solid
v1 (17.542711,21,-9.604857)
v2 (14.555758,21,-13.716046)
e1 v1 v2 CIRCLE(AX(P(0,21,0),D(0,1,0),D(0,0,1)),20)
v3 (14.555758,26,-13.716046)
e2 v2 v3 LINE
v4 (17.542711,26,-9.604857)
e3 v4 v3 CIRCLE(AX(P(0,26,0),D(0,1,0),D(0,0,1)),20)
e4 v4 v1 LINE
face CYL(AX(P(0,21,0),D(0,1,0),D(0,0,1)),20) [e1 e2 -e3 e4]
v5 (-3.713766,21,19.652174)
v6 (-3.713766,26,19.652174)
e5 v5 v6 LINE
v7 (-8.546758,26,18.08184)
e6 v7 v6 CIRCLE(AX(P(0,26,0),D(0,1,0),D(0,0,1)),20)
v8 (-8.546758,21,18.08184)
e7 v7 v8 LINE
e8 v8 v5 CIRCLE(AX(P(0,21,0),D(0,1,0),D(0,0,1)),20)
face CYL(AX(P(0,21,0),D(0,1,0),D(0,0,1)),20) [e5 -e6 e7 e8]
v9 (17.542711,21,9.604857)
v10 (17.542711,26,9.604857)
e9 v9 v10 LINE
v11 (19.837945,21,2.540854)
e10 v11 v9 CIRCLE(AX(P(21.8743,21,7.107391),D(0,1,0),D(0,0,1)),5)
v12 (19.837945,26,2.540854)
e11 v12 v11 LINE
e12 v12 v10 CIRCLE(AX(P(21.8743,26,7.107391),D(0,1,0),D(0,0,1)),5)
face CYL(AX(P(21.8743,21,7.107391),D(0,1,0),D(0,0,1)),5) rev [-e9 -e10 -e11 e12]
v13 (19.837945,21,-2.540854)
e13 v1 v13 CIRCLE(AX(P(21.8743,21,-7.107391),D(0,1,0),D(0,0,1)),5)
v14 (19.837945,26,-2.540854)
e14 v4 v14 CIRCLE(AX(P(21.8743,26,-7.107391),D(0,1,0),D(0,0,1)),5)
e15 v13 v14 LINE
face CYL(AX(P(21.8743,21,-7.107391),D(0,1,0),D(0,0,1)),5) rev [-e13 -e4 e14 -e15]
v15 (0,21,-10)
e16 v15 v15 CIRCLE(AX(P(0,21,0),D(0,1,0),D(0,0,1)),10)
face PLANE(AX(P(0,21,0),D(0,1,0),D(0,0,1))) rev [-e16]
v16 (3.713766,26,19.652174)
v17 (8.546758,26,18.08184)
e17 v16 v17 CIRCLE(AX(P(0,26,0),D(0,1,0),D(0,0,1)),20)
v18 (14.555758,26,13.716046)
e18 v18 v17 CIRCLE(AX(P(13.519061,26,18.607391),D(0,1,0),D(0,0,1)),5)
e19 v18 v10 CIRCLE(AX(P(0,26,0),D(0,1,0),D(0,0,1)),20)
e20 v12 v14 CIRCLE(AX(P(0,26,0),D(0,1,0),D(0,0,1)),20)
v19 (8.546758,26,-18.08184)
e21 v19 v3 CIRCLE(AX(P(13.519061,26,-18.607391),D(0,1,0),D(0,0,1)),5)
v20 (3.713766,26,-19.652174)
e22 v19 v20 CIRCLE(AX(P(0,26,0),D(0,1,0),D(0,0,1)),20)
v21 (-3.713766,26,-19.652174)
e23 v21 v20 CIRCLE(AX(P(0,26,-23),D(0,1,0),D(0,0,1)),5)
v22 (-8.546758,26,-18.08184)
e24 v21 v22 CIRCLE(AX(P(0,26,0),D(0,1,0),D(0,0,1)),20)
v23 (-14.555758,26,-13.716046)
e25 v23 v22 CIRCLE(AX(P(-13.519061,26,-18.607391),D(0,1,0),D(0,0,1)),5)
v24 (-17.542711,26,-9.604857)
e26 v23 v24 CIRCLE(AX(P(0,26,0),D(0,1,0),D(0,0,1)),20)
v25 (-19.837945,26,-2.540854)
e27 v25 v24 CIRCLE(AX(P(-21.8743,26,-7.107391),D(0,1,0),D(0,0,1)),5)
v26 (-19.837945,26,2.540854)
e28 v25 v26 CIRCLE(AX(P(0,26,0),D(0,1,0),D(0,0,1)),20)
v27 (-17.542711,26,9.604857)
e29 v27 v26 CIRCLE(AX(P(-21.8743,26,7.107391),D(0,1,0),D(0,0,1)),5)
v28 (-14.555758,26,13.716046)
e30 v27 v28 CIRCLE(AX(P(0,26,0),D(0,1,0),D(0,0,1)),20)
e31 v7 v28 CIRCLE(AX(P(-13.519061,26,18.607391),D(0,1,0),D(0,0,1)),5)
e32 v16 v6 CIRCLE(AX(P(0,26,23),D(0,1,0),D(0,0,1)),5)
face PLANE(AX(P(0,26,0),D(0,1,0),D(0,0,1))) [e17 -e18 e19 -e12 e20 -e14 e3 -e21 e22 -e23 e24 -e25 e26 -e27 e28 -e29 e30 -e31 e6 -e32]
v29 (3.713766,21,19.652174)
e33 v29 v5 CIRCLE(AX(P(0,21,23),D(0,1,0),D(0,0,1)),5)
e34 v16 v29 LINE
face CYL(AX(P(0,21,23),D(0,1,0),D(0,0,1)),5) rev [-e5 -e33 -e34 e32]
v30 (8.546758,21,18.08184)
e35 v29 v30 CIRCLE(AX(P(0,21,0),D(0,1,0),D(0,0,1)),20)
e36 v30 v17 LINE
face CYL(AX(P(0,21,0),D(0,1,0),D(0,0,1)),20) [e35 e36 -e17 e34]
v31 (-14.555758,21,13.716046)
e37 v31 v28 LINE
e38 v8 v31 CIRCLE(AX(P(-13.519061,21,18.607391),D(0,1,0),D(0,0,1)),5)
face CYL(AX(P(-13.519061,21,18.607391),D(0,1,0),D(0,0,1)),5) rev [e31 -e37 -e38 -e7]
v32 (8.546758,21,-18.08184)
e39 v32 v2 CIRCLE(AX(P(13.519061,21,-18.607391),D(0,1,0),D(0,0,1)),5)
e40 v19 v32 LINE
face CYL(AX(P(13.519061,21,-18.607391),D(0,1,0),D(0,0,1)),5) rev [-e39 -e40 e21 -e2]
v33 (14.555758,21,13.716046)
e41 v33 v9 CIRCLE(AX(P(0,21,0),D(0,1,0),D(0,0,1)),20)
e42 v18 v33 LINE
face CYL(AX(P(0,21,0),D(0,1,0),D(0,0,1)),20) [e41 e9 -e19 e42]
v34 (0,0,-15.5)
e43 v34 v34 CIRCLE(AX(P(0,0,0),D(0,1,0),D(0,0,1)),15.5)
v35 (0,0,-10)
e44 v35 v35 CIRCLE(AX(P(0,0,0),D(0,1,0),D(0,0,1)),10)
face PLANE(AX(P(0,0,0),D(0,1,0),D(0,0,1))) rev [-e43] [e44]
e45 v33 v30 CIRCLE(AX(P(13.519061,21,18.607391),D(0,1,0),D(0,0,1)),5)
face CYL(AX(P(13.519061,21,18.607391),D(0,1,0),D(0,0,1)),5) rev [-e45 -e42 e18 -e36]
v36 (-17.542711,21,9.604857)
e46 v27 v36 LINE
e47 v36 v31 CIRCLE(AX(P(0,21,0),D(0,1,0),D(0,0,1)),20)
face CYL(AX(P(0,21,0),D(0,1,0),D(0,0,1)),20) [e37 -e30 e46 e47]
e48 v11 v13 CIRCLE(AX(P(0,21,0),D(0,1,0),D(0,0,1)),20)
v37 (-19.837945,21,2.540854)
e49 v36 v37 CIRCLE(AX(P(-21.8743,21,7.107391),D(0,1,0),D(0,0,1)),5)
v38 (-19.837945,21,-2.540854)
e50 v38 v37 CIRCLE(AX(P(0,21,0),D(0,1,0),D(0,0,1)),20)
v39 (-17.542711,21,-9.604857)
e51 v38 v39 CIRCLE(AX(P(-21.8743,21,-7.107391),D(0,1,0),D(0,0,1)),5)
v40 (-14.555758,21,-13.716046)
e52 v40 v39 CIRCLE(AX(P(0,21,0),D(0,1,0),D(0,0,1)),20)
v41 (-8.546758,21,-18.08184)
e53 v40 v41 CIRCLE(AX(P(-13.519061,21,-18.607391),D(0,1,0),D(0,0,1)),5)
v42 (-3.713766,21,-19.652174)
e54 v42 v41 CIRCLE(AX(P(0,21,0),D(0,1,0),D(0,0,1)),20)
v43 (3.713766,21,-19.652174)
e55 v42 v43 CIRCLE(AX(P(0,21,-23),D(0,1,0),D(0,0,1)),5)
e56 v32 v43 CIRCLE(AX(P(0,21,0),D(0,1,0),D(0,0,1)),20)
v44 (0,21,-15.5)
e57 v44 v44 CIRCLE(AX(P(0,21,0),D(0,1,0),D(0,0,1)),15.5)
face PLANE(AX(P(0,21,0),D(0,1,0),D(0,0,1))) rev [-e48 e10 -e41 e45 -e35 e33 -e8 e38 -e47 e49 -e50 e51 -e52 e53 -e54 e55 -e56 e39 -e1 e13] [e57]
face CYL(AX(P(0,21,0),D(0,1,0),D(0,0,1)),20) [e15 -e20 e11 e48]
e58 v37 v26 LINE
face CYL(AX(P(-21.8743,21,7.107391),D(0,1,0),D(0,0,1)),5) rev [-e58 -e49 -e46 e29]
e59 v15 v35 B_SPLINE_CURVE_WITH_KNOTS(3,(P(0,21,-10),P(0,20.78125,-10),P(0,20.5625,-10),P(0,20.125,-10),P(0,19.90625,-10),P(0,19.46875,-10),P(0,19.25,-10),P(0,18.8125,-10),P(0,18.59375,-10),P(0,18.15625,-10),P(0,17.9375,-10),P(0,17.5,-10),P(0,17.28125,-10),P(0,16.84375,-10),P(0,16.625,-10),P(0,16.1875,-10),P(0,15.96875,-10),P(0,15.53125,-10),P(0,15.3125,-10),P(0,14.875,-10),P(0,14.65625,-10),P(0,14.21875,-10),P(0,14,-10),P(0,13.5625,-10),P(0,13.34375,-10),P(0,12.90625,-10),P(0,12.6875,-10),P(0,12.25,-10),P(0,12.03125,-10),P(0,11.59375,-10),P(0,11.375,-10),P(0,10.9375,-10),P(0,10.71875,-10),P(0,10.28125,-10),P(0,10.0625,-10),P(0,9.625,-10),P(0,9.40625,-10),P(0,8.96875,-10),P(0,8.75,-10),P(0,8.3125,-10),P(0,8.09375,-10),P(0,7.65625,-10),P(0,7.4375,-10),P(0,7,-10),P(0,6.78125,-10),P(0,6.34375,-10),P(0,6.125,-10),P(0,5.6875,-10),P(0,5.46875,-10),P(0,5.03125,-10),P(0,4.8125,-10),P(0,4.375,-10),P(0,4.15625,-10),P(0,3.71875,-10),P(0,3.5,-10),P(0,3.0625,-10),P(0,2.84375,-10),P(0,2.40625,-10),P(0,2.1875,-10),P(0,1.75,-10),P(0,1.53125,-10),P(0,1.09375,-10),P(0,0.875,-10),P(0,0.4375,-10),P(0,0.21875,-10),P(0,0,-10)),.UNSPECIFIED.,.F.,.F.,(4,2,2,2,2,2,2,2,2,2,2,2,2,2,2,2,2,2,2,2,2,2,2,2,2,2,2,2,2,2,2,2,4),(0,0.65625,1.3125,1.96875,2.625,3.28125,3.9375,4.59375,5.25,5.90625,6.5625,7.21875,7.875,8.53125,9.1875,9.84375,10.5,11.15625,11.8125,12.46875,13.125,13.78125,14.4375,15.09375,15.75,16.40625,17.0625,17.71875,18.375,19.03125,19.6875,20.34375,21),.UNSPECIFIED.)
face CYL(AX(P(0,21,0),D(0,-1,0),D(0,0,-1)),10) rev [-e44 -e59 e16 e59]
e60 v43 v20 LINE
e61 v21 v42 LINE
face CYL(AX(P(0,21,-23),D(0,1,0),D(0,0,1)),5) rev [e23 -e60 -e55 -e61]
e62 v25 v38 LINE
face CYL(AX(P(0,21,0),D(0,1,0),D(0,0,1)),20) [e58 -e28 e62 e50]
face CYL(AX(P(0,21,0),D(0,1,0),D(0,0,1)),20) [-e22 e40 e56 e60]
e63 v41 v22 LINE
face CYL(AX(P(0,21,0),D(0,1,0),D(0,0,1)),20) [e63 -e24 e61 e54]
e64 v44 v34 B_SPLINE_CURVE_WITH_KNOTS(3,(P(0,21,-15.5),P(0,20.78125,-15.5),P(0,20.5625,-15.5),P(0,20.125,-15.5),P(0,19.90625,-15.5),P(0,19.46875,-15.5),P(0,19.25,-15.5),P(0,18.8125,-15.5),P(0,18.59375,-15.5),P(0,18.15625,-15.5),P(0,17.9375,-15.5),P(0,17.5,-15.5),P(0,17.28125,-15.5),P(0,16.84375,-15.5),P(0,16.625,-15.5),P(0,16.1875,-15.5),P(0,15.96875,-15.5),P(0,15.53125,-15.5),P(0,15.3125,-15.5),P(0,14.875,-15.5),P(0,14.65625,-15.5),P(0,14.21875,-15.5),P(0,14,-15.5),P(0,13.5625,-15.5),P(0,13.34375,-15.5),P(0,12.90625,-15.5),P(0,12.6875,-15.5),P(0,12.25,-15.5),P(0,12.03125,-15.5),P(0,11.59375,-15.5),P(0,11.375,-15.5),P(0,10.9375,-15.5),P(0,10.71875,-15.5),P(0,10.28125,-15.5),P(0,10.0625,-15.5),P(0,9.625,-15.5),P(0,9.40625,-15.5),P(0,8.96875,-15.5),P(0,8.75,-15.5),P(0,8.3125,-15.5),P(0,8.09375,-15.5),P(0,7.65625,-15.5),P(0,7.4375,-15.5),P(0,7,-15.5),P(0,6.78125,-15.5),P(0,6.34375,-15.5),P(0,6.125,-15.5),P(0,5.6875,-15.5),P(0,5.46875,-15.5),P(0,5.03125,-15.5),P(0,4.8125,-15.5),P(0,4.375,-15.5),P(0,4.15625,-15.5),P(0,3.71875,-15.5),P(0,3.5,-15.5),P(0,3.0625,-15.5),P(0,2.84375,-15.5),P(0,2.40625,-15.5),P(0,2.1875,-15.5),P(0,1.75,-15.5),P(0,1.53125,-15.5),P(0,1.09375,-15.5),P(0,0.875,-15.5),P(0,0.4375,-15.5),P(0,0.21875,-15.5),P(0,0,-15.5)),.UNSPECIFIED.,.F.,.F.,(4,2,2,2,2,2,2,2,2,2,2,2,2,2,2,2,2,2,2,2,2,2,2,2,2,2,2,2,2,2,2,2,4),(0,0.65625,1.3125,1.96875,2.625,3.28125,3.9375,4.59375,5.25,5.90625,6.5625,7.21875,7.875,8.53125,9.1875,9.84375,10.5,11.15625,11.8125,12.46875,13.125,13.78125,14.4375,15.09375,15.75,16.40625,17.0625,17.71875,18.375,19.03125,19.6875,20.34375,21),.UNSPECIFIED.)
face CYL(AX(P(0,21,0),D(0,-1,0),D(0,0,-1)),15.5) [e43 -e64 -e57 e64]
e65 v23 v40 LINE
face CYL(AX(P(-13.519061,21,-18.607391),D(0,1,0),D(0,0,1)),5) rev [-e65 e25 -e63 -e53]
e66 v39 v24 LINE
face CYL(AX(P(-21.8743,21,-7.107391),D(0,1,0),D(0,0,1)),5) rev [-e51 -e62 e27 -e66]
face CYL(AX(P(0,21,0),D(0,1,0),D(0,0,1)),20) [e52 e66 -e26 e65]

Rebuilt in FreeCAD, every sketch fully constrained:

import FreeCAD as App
import Part
import Sketcher
from FreeCAD import Vector

doc = App.newDocument("Part")
body = doc.addObject("PartDesign::Body", "Body")

sketch1 = body.newObject("Sketcher::SketchObject", "Sketch")
sketch1.AttachmentSupport = (doc.getObject("XZ_Plane"), [""])
sketch1.MapMode = "FlatFace"
sketch1.addGeometry(Part.Circle(Vector(0, 0, 0), Vector(0, 0, 1), 16), False)
sketch1.addGeometry(Part.Circle(Vector(0, 0, 0), Vector(0, 0, 1), 10), False)
sketch1.addConstraint(Sketcher.Constraint("Coincident", 0, 3, -1, 1))
sketch1.addConstraint(Sketcher.Constraint("Coincident", 1, 3, -1, 1))
sketch1.addConstraint(Sketcher.Constraint("Diameter", 0, 31.0))
sketch1.addConstraint(Sketcher.Constraint("Diameter", 1, 20.0))
pad1 = body.newObject("PartDesign::Pad", "Pad")
pad1.Profile = sketch1
pad1.Length = 21
pad1.Reversed = True

sketch2 = body.newObject("Sketcher::SketchObject", "Sketch001")
sketch2.AttachmentSupport = (doc.getObject("XZ_Plane"), [""])
sketch2.MapMode = "FlatFace"
sketch2.AttachmentOffset = App.Placement(Vector(0, 0, -21), App.Rotation())
sketch2.addGeometry(Part.Circle(Vector(0, 0, 0), Vector(0, 0, 1), 23), False)
sketch2.addConstraint(Sketcher.Constraint("Coincident", 0, 3, -1, 1))
sketch2.addConstraint(Sketcher.Constraint("Diameter", 0, 46.0))
pad2 = body.newObject("PartDesign::Pad", "Pad001")
pad2.Profile = sketch2
pad2.Length = 5
pad2.Reversed = True

sketch3 = body.newObject("Sketcher::SketchObject", "Sketch002")
sketch3.AttachmentSupport = (doc.getObject("XZ_Plane"), [""])
sketch3.MapMode = "FlatFace"
sketch3.AttachmentOffset = App.Placement(Vector(0, 0, -26), App.Rotation())
sketch3.addGeometry(Part.Circle(Vector(0, -23, 0), Vector(0, 0, 1), 5), False)
sketch3.addGeometry(Part.Circle(Vector(14, -19, 0), Vector(0, 0, 1), 5), False)
sketch3.addGeometry(Part.Circle(Vector(22, -7, 0), Vector(0, 0, 1), 5), False)
sketch3.addGeometry(Part.Circle(Vector(22, 7, 0), Vector(0, 0, 1), 5), False)
sketch3.addGeometry(Part.Circle(Vector(14, 19, 0), Vector(0, 0, 1), 5), False)
sketch3.addGeometry(Part.Circle(Vector(0, 23, 0), Vector(0, 0, 1), 5), False)
sketch3.addGeometry(Part.Circle(Vector(-14, 19, 0), Vector(0, 0, 1), 5), False)
sketch3.addGeometry(Part.Circle(Vector(-22, 7, 0), Vector(0, 0, 1), 5), False)
sketch3.addGeometry(Part.Circle(Vector(-22, -7, 0), Vector(0, 0, 1), 5), False)
sketch3.addGeometry(Part.Circle(Vector(-14, -19, 0), Vector(0, 0, 1), 5), False)
sketch3.addConstraint(Sketcher.Constraint("Equal", 0, 1))
sketch3.addConstraint(Sketcher.Constraint("Equal", 1, 2))
sketch3.addConstraint(Sketcher.Constraint("Equal", 2, 3))
sketch3.addConstraint(Sketcher.Constraint("Equal", 3, 4))
sketch3.addConstraint(Sketcher.Constraint("Equal", 4, 5))
sketch3.addConstraint(Sketcher.Constraint("Equal", 5, 6))
sketch3.addConstraint(Sketcher.Constraint("Equal", 6, 7))
sketch3.addConstraint(Sketcher.Constraint("Equal", 7, 8))
sketch3.addConstraint(Sketcher.Constraint("Equal", 8, 9))
sketch3.addConstraint(Sketcher.Constraint("Symmetric", 0, 3, 5, 3, -1, 1))
sketch3.addConstraint(Sketcher.Constraint("Symmetric", 1, 3, 6, 3, -1, 1))
sketch3.addConstraint(Sketcher.Constraint("Symmetric", 2, 3, 7, 3, -1, 1))
sketch3.addConstraint(Sketcher.Constraint("Symmetric", 3, 3, 8, 3, -1, 1))
sketch3.addConstraint(Sketcher.Constraint("Symmetric", 4, 3, 9, 3, -1, 1))
sketch3.addConstraint(Sketcher.Constraint("Symmetric", 4, 3, 6, 3, -2))
sketch3.addConstraint(Sketcher.Constraint("Symmetric", 3, 3, 7, 3, -2))
sketch3.addConstraint(Sketcher.Constraint("PointOnObject", 0, 3, -2))
sketch3.addConstraint(Sketcher.Constraint("Diameter", 0, 10.0))
sketch3.addConstraint(Sketcher.Constraint("DistanceY", 0, 3, -1, 1, 23.0))
sketch3.addConstraint(Sketcher.Constraint("DistanceY", 1, 3, 2, 3, 11.5))
sketch3.addConstraint(Sketcher.Constraint("DistanceX", -1, 1, 2, 3, 21.8743))
sketch3.addConstraint(Sketcher.Constraint("DistanceX", -1, 1, 1, 3, 13.519061))
sketch3.addConstraint(Sketcher.Constraint("DistanceY", 1, 3, -1, 1, 18.607391))
pocket1 = body.newObject("PartDesign::Pocket", "Pocket")
pocket1.Profile = sketch3
pocket1.Length = 5
pocket1.Reversed = True

sketch4 = body.newObject("Sketcher::SketchObject", "Sketch003")
sketch4.AttachmentSupport = (doc.getObject("XZ_Plane"), [""])
sketch4.MapMode = "FlatFace"
sketch4.AttachmentOffset = App.Placement(Vector(0, 0, -21), App.Rotation())
sketch4.addGeometry(Part.Circle(Vector(0, 0, 0), Vector(0, 0, 1), 23), False)
sketch4.addGeometry(Part.Circle(Vector(0, 0, 0), Vector(0, 0, 1), 20), False)
sketch4.addConstraint(Sketcher.Constraint("Coincident", 0, 3, -1, 1))
sketch4.addConstraint(Sketcher.Constraint("Coincident", 1, 3, -1, 1))
sketch4.addConstraint(Sketcher.Constraint("Diameter", 0, 46.0))
sketch4.addConstraint(Sketcher.Constraint("Diameter", 1, 40.0))
pocket2 = body.newObject("PartDesign::Pocket", "Pocket001")
pocket2.Profile = sketch4
pocket2.Length = 5

doc.recompute()
